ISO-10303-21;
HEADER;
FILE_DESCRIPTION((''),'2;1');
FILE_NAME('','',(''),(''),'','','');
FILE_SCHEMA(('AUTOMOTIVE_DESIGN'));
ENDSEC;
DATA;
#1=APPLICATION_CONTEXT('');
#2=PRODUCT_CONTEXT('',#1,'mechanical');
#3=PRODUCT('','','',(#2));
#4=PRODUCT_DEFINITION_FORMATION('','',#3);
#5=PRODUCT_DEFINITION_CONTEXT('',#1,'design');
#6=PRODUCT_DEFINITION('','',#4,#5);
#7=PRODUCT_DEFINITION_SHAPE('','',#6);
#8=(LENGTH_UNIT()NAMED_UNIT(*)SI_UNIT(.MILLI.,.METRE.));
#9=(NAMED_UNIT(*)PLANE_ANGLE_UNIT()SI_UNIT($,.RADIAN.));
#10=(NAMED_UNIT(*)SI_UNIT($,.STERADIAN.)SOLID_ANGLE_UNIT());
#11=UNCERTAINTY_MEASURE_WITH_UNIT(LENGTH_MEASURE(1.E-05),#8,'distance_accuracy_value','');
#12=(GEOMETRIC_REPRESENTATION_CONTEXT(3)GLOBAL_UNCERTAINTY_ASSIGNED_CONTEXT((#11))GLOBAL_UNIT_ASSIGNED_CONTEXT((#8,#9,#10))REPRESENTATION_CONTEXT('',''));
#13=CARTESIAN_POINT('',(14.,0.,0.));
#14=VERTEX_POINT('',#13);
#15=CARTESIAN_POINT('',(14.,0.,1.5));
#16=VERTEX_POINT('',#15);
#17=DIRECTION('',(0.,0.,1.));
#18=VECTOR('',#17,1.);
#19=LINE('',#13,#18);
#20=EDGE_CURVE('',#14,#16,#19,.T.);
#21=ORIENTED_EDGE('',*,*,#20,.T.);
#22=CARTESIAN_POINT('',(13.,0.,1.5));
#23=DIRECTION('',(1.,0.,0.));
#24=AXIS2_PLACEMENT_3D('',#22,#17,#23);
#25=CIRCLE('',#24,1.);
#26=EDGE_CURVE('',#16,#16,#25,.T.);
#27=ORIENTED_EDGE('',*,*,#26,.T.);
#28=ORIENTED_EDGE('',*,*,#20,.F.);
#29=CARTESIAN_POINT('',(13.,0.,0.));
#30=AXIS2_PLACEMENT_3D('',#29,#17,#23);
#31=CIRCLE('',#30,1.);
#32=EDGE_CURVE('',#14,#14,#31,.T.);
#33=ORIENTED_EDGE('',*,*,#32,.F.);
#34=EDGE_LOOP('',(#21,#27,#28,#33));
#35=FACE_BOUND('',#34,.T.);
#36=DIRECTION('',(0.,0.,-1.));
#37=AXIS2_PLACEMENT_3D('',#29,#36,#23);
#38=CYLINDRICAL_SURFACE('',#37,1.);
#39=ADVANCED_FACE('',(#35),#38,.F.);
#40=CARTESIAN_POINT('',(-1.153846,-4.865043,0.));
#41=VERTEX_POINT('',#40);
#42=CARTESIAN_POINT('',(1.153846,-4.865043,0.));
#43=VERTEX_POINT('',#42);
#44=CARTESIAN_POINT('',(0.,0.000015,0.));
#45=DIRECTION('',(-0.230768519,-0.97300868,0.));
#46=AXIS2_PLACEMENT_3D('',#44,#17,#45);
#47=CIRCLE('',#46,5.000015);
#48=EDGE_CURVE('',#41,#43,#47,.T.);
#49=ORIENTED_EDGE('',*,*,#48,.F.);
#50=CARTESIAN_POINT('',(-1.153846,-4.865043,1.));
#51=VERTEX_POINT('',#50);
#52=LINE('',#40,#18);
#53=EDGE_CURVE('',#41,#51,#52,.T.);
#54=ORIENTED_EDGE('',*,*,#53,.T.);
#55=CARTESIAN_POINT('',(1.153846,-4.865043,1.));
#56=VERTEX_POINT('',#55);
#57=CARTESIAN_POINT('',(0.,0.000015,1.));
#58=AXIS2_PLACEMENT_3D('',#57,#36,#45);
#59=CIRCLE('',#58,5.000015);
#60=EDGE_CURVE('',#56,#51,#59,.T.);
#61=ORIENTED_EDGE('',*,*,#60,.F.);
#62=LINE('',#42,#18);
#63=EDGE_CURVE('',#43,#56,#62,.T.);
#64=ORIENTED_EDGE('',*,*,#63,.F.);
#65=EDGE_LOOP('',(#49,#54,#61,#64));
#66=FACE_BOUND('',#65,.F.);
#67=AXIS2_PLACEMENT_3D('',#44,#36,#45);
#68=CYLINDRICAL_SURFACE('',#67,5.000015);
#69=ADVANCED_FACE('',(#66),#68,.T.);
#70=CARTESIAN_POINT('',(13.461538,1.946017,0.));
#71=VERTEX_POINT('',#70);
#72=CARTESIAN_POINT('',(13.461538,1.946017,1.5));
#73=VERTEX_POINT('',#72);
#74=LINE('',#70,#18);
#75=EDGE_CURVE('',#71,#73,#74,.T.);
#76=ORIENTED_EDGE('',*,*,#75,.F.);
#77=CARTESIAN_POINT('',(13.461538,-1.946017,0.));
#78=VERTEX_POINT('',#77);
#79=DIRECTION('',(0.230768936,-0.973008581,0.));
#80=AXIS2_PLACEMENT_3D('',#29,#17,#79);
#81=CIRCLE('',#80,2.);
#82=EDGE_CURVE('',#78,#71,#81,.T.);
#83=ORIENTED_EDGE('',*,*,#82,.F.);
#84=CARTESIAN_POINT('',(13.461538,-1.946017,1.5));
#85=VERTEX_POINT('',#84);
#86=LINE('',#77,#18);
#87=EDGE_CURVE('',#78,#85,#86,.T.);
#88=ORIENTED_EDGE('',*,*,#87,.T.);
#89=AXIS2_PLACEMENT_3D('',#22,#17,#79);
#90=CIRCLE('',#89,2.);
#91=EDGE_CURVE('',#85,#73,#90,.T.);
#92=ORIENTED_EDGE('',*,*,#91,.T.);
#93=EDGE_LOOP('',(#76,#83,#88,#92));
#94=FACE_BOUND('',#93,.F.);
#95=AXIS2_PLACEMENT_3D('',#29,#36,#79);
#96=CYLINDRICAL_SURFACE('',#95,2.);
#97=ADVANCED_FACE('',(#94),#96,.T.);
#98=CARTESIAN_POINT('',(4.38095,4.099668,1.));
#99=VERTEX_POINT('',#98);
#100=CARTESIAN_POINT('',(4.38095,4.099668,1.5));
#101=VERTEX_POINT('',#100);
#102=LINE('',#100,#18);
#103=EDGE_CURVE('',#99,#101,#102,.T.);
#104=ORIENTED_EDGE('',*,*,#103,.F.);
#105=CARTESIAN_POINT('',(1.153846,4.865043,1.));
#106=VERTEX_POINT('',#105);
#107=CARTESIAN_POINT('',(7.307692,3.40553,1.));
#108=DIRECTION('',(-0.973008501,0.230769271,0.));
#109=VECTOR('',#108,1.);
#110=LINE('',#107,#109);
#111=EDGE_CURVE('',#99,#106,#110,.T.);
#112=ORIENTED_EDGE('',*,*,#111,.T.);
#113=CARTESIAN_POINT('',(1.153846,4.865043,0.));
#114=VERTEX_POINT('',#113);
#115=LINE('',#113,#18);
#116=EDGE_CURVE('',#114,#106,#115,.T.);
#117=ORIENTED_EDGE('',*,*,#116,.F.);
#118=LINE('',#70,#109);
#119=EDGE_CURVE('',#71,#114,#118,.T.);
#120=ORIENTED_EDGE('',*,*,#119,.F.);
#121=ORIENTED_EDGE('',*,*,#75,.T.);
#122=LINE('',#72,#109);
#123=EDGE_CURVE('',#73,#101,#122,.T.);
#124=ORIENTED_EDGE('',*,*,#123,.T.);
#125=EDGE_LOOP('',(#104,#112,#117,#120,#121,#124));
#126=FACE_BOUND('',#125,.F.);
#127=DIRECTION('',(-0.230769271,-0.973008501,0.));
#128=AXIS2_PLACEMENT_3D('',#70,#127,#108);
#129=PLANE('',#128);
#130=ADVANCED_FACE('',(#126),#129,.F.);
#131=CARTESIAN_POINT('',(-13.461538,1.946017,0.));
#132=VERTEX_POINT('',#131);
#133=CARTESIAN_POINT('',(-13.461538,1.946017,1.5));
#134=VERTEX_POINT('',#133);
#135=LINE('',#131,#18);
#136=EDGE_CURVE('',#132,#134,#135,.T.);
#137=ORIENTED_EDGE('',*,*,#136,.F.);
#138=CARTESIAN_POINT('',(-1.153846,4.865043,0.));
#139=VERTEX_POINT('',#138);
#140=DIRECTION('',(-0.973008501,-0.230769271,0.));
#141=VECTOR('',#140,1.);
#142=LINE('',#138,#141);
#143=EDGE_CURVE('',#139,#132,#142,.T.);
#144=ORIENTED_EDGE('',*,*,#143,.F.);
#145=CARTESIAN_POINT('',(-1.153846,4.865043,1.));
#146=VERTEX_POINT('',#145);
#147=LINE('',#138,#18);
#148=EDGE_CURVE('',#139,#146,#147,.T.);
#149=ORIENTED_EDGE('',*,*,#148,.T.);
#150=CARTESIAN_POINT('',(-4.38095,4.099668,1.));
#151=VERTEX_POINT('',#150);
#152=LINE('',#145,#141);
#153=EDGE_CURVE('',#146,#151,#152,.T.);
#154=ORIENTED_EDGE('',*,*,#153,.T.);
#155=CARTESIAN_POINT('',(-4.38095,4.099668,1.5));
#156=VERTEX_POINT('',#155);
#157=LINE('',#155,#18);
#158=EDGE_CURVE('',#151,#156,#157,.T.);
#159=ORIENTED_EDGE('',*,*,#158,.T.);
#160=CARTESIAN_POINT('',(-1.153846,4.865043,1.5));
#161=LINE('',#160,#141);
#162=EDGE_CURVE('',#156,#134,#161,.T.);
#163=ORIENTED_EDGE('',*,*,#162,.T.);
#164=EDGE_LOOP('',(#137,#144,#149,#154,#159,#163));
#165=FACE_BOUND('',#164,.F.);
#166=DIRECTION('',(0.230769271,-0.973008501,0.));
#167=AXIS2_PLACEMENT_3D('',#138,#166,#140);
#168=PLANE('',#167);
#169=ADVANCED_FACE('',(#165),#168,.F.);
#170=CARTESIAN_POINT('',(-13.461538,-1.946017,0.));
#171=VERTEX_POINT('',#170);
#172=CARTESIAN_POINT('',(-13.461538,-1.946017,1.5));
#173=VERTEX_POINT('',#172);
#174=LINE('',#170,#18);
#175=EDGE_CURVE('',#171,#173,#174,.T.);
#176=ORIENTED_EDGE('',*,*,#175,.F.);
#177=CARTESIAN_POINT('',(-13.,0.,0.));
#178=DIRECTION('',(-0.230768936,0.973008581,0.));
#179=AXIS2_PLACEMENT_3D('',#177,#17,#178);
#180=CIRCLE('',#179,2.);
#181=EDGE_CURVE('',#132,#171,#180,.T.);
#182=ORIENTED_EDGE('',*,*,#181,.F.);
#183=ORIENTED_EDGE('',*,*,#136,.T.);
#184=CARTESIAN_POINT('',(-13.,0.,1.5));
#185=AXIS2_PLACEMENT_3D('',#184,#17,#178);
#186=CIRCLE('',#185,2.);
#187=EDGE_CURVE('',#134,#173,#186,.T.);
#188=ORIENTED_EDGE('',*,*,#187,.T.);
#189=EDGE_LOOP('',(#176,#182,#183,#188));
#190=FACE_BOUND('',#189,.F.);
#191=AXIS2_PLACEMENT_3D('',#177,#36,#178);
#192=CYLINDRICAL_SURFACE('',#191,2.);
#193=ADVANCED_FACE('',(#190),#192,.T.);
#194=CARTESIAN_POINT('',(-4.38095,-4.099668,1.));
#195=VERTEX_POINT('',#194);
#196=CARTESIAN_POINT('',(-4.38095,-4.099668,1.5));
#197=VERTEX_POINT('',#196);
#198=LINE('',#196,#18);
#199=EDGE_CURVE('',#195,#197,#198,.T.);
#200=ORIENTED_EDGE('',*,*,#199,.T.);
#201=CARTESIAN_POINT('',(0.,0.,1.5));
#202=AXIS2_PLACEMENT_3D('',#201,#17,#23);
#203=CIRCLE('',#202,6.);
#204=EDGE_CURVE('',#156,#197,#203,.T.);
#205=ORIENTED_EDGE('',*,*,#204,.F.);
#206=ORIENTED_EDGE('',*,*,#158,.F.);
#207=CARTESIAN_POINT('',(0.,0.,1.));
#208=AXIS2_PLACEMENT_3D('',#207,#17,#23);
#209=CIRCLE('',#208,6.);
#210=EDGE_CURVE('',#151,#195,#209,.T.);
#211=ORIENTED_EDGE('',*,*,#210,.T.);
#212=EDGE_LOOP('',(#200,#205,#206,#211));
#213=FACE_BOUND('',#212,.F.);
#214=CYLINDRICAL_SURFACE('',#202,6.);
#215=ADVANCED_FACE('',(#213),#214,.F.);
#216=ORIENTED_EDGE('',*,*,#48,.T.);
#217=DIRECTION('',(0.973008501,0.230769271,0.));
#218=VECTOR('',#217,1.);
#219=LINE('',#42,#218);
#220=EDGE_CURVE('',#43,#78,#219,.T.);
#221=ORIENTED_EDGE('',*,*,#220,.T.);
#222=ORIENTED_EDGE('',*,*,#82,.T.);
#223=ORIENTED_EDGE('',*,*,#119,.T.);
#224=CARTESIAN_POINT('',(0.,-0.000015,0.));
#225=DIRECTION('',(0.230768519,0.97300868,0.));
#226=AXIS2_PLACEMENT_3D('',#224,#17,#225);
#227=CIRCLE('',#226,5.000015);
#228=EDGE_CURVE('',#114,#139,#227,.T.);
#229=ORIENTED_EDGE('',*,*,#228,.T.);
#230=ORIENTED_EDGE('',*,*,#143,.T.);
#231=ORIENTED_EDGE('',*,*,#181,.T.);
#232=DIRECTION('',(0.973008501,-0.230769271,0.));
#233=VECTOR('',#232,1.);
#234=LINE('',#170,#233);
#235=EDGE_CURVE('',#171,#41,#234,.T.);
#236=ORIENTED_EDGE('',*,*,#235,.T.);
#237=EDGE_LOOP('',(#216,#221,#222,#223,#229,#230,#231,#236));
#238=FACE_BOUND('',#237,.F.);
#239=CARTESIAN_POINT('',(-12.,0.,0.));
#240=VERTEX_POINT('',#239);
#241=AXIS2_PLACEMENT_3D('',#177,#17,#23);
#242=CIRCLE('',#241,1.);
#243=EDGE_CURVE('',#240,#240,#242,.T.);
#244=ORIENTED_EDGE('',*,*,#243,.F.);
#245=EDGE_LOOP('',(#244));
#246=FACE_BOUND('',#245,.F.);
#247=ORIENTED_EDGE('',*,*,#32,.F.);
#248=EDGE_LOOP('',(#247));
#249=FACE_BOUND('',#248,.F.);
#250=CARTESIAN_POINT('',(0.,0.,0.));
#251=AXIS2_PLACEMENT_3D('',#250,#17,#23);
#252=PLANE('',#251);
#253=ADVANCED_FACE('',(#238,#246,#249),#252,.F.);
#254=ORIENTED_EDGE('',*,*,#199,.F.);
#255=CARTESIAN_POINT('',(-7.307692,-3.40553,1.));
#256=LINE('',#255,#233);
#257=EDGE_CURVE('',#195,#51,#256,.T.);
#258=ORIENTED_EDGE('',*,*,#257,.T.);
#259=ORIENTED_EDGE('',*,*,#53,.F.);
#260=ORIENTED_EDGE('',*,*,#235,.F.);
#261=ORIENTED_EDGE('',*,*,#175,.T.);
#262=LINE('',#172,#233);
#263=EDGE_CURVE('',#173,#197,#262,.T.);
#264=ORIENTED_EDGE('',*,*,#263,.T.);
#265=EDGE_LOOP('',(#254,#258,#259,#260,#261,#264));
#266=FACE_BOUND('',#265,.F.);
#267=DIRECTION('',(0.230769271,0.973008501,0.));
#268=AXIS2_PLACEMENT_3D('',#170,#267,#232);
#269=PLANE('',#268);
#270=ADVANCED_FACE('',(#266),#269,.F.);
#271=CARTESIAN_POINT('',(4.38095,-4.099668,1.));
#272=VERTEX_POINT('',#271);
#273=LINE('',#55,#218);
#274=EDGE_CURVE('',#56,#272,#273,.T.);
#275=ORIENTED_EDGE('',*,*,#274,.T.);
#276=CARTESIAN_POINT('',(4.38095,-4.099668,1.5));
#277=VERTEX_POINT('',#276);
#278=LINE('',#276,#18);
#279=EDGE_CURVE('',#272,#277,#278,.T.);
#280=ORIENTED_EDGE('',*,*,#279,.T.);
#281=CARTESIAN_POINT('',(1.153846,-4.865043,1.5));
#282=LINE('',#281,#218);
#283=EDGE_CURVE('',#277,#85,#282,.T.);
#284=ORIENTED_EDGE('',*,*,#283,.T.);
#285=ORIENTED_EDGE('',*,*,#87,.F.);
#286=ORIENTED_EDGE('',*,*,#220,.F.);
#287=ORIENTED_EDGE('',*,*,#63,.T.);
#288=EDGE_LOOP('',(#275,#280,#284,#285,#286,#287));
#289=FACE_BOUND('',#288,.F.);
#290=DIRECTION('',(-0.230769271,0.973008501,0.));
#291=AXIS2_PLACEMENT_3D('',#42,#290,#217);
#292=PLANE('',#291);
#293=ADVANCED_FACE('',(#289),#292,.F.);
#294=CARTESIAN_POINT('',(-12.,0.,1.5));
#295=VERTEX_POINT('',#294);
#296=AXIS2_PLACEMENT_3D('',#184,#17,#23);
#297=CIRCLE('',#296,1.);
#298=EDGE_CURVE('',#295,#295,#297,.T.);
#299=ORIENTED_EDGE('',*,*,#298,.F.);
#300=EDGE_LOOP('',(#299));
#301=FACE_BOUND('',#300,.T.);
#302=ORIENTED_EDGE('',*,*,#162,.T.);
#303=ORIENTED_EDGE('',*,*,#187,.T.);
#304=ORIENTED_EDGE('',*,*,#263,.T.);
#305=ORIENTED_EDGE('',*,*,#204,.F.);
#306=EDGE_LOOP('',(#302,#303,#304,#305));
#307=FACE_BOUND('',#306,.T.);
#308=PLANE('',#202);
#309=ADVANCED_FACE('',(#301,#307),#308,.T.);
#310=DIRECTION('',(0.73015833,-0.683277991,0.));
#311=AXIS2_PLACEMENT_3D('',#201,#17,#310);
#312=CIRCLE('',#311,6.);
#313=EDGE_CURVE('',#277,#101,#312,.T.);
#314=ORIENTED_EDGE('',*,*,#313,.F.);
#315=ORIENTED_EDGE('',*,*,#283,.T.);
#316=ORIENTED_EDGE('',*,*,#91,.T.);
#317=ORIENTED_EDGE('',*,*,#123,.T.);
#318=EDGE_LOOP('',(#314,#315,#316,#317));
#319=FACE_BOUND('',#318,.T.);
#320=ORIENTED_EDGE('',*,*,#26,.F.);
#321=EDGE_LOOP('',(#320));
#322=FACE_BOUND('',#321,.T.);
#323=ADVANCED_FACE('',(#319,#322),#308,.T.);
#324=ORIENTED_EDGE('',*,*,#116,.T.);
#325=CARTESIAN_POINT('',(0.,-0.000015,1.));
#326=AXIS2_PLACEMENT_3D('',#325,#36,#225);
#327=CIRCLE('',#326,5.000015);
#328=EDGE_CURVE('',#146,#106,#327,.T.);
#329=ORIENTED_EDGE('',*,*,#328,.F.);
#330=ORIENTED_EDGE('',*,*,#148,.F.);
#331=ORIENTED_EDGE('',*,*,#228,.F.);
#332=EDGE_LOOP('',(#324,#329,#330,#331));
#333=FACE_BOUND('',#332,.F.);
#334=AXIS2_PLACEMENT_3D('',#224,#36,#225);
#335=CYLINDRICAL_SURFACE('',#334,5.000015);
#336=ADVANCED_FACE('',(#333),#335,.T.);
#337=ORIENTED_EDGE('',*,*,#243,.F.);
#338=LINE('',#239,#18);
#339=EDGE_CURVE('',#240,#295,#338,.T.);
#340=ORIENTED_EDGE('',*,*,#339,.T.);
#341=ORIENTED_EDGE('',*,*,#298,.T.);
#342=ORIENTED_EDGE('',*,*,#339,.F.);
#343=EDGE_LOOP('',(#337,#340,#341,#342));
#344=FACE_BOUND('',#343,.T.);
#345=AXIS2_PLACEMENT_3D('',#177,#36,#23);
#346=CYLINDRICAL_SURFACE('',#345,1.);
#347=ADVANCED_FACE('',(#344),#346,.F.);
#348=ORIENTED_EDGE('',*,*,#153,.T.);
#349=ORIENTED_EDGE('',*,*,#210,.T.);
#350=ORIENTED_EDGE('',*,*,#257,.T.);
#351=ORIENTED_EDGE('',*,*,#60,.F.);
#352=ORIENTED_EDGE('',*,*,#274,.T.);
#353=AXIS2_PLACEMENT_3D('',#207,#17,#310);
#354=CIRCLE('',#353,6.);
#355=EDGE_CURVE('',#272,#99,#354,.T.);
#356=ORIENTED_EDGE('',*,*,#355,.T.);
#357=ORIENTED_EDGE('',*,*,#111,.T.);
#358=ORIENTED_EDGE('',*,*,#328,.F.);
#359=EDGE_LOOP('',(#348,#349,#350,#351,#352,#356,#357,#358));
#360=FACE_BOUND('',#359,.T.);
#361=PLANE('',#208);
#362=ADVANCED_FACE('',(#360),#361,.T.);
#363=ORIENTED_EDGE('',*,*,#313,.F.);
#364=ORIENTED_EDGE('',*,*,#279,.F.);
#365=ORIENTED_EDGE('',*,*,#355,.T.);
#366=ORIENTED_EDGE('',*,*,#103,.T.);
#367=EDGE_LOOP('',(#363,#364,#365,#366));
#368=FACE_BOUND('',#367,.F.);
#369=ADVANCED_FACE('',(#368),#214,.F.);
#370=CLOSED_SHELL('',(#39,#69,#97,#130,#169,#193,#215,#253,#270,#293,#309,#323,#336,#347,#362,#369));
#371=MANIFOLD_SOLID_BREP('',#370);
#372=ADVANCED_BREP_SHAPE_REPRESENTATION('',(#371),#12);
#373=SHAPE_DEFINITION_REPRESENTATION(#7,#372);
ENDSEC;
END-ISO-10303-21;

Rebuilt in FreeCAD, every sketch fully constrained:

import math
import FreeCAD as App
import Part
import Sketcher

V = App.Vector

doc = App.newDocument("Part")
body = doc.addObject("PartDesign::Body", "Body")

sketch1 = body.newObject("Sketcher::SketchObject", "Sketch")
sketch1.AttachmentSupport = (doc.getObject("XY_Plane"), [""])
sketch1.MapMode = "FlatFace"
sketch1.addGeometry([
    Part.LineSegment(V(13.461538, 1.946017, 0), V(1.153846, 4.865043, 0)),
    Part.ArcOfCircle(Part.Circle(V(0, -0.000015, 0), V(0, 0, 1), 5.000015), math.radians(76.657678), math.radians(103.342322)),
    Part.LineSegment(V(-1.153846, 4.865043, 0), V(-13.461538, 1.946017, 0)),
    Part.ArcOfCircle(Part.Circle(V(-13, 0, 0), V(0, 0, 1), 2), math.radians(103.342346), math.radians(256.657654)),
    Part.LineSegment(V(-13.461538, -1.946017, 0), V(-1.153846, -4.865043, 0)),
    Part.ArcOfCircle(Part.Circle(V(0, 0.000015, 0), V(0, 0, 1), 5.000015), math.radians(-103.342322), math.radians(-76.657678)),
    Part.LineSegment(V(1.153846, -4.865043, 0), V(13.461538, -1.946017, 0)),
    Part.ArcOfCircle(Part.Circle(V(13, 0, 0), V(0, 0, 1), 2), math.radians(-76.657654), math.radians(76.657654)),
    Part.Circle(V(-13, 0, 0), V(0, 0, 1), 1),
    Part.Circle(V(13, 0, 0), V(0, 0, 1), 1),
], False)
sketch1.addConstraint([
    Sketcher.Constraint("Tangent", 0, 2, 1, 1),
    Sketcher.Constraint("Tangent", 1, 2, 2, 1),
    Sketcher.Constraint("Tangent", 2, 2, 3, 1),
    Sketcher.Constraint("Tangent", 3, 2, 4, 1),
    Sketcher.Constraint("Tangent", 4, 2, 5, 1),
    Sketcher.Constraint("Tangent", 5, 2, 6, 1),
    Sketcher.Constraint("Tangent", 6, 2, 7, 1),
    Sketcher.Constraint("Tangent", 7, 2, 0, 1),
    Sketcher.Constraint("Coincident", 8, 3, 3, 3),
    Sketcher.Constraint("Coincident", 9, 3, 7, 3),
    Sketcher.Constraint("Equal", 1, 5),
    Sketcher.Constraint("Equal", 3, 7),
    Sketcher.Constraint("Equal", 8, 9),
    Sketcher.Constraint("Symmetric", 1, 3, 5, 3, -1, 1),
    Sketcher.Constraint("Symmetric", 3, 3, 7, 3, -1, 1),
    Sketcher.Constraint("Symmetric", 0, 2, 1, 2, -2),
    Sketcher.Constraint("Diameter", 8, 2.0),
    Sketcher.Constraint("Radius", 3, 2.0),
    Sketcher.Constraint("DistanceX", 3, 3, -1, 1, 13.0),
    Sketcher.Constraint("Radius", 1, 5.000015),
    Sketcher.Constraint("DistanceY", 5, 3, 0, 2, 4.865028),
])
pad1 = body.newObject("PartDesign::Pad", "Pad")
pad1.Profile = sketch1
pad1.Length = 1.5

sketch2 = body.newObject("Sketcher::SketchObject", "Sketch001")
sketch2.AttachmentSupport = (doc.getObject("XY_Plane"), [""])
sketch2.MapMode = "FlatFace"
sketch2.AttachmentOffset = App.Placement(V(0, 0, 1.5), App.Rotation())
sketch2.addGeometry(Part.Circle(V(0, 0, 0), V(0, 0, 1), 6), False)
sketch2.addConstraint([
    Sketcher.Constraint("Coincident", 0, 3, -1, 1),
    Sketcher.Constraint("Diameter", 0, 12.0),
])
pocket1 = body.newObject("PartDesign::Pocket", "Pocket")
pocket1.Profile = sketch2
pocket1.Length = 0.5

doc.recompute()
